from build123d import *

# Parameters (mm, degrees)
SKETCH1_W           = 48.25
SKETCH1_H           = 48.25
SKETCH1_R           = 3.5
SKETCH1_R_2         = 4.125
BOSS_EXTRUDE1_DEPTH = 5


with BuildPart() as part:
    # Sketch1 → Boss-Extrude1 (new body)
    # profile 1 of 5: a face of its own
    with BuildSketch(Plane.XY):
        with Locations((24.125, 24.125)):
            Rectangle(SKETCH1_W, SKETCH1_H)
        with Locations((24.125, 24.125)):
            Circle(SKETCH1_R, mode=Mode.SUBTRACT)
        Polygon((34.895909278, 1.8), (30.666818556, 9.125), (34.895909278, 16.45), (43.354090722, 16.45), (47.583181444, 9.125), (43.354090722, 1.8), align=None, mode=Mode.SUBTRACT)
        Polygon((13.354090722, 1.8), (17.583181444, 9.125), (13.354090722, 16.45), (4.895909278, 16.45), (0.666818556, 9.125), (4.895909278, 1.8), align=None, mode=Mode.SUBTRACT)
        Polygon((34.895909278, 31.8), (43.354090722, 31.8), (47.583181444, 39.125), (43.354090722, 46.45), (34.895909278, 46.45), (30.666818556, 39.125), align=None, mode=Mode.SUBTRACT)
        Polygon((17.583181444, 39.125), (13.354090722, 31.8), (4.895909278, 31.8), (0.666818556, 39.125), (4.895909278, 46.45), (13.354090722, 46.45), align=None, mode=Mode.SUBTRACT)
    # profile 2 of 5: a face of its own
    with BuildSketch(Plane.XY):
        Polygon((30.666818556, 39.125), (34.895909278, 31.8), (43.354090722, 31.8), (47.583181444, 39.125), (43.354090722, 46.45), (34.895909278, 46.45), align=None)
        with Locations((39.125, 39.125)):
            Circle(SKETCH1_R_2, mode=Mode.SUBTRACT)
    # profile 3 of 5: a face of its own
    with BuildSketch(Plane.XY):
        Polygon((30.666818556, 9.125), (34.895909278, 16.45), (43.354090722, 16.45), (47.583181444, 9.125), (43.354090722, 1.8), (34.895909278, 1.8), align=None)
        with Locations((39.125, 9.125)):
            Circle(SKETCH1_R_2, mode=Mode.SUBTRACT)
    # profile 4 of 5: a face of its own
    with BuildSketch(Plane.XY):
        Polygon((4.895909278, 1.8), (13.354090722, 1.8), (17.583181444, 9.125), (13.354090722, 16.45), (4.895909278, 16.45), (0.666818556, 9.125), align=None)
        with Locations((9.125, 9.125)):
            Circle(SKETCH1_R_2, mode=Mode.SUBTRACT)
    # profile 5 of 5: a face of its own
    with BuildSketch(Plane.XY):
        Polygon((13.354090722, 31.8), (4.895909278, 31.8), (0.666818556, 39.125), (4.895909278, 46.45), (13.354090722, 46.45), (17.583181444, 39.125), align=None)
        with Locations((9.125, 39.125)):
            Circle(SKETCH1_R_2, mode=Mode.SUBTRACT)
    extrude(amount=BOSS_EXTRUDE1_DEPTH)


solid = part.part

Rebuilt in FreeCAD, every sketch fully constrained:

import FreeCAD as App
import Part
import Sketcher
from FreeCAD import Vector

doc = App.newDocument("Part")
body = doc.addObject("PartDesign::Body", "Body")

# Sketch on XY plane
sketch1 = body.newObject("Sketcher::SketchObject", "Sketch")
sketch1.AttachmentSupport = (doc.getObject("XY_Plane"), [""])
sketch1.MapMode = "FlatFace"
sketch1.addGeometry(Part.LineSegment(Vector(0, 48.2, 0), Vector(0, 0, 0)), False)
sketch1.addGeometry(Part.LineSegment(Vector(0, 0, 0), Vector(48.2, 0, 0)), False)
sketch1.addGeometry(Part.LineSegment(Vector(48.2, 0, 0), Vector(48.2, 48.2, 0)), False)
sketch1.addGeometry(Part.LineSegment(Vector(48.2, 48.2, 0), Vector(0, 48.2, 0)), False)
sketch1.addGeometry(Part.Circle(Vector(24.1, 24.1, 0), Vector(0, 0, 1), 3.5), False)
sketch1.addGeometry(Part.Circle(Vector(9.1, 9.1, 0), Vector(0, 0, 1), 4.1), False)
sketch1.addGeometry(Part.Circle(Vector(39.1, 9.1, 0), Vector(0, 0, 1), 4.1), False)
sketch1.addGeometry(Part.Circle(Vector(9.1, 39.1, 0), Vector(0, 0, 1), 4.1), False)
sketch1.addGeometry(Part.Circle(Vector(39.1, 39.1, 0), Vector(0, 0, 1), 4.1), False)
sketch1.addConstraint(Sketcher.Constraint("Coincident", 0, 2, 1, 1))
sketch1.addConstraint(Sketcher.Constraint("Coincident", 1, 2, 2, 1))
sketch1.addConstraint(Sketcher.Constraint("Coincident", 2, 2, 3, 1))
sketch1.addConstraint(Sketcher.Constraint("Coincident", 3, 2, 0, 1))
sketch1.addConstraint(Sketcher.Constraint("Vertical", 0))
sketch1.addConstraint(Sketcher.Constraint("Horizontal", 1))
sketch1.addConstraint(Sketcher.Constraint("Vertical", 2))
sketch1.addConstraint(Sketcher.Constraint("Horizontal", 3))
sketch1.addConstraint(Sketcher.Constraint("Coincident", 0, 2, -1, 1))
sketch1.addConstraint(Sketcher.Constraint("Equal", 5, 6))
sketch1.addConstraint(Sketcher.Constraint("Equal", 6, 7))
sketch1.addConstraint(Sketcher.Constraint("Equal", 7, 8))
sketch1.addConstraint(Sketcher.Constraint("Horizontal", 5, 3, 6, 3))
sketch1.addConstraint(Sketcher.Constraint("Horizontal", 7, 3, 8, 3))
sketch1.addConstraint(Sketcher.Constraint("Vertical", 5, 3, 7, 3))
sketch1.addConstraint(Sketcher.Constraint("Vertical", 6, 3, 8, 3))
sketch1.addConstraint(Sketcher.Constraint("Equal", 3, 0))
sketch1.addConstraint(Sketcher.Constraint("Diameter", 4, 7.0))
sketch1.addConstraint(Sketcher.Constraint("Diameter", 5, 8.25))
sketch1.addConstraint(Sketcher.Constraint("DistanceX", 5, 3, 4, 3, 15.0))
sketch1.addConstraint(Sketcher.Constraint("DistanceY", 5, 3, 4, 3, 15.0))
sketch1.addConstraint(Sketcher.Constraint("DistanceX", 4, 3, 6, 3, 15.0))
sketch1.addConstraint(Sketcher.Constraint("DistanceY", 4, 3, 7, 3, 15.0))
sketch1.addConstraint(Sketcher.Constraint("DistanceX", 1, 1, 1, 2, 48.25))
sketch1.addConstraint(Sketcher.Constraint("DistanceX", -1, 1, 4, 3, 24.125))
sketch1.addConstraint(Sketcher.Constraint("DistanceY", -1, 1, 4, 3, 24.125))
pad1 = body.newObject("PartDesign::Pad", "Pad")
pad1.Profile = sketch1
pad1.Length = 5

doc.recompute()
